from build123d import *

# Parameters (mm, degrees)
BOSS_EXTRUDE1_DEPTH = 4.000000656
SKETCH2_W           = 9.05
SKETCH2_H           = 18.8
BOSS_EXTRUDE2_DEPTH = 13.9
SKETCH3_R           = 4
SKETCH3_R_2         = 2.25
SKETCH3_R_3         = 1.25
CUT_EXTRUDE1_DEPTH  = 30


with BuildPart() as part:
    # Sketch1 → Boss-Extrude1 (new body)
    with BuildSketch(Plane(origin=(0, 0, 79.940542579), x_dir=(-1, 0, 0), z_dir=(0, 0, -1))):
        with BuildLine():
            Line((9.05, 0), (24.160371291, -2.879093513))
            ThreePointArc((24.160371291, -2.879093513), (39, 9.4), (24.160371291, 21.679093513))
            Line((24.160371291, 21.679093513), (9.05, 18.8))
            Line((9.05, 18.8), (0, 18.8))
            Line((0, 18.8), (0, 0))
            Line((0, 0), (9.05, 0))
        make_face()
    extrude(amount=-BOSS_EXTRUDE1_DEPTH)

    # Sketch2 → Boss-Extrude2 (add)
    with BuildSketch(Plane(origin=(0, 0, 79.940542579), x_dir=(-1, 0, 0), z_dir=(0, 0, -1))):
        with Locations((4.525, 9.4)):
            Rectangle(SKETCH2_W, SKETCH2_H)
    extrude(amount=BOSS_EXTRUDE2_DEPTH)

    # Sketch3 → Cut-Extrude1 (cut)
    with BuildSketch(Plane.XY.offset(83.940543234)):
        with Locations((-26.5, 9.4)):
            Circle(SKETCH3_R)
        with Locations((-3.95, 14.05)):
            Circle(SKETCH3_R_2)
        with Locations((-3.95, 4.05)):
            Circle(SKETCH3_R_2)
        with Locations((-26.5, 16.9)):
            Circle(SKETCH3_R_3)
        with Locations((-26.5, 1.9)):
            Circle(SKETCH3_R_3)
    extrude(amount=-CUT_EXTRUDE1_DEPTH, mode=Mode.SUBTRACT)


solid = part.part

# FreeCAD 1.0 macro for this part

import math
import FreeCAD as App
import Part
import Sketcher

doc = App.newDocument("Part")
body = doc.addObject("PartDesign::Body", "Body")

sketch1 = body.newObject("Sketcher::SketchObject", "Sketch")
sketch1.AttachmentSupport = (doc.getObject("XY_Plane"), [""])
sketch1.MapMode = "FlatFace"
sketch1.AttachmentOffset = App.Placement(App.Vector(0, 0, 79.940543), App.Rotation())
sketch1.addGeometry(Part.LineSegment(App.Vector(-9, 0, 0), App.Vector(-24, -3, 0)), False)
sketch1.addGeometry(Part.ArcOfCircle(Part.Circle(App.Vector(-26, 9, 0), App.Vector(0, 0, 1), 12), math.radians(79), math.radians(281)), False)
sketch1.addGeometry(Part.LineSegment(App.Vector(-24, 22, 0), App.Vector(-9, 19, 0)), False)
sketch1.addGeometry(Part.LineSegment(App.Vector(-9, 19, 0), App.Vector(0, 19, 0)), False)
sketch1.addGeometry(Part.LineSegment(App.Vector(0, 19, 0), App.Vector(0, 0, 0)), False)
sketch1.addGeometry(Part.LineSegment(App.Vector(0, 0, 0), App.Vector(-9, 0, 0)), False)
sketch1.addConstraint(Sketcher.Constraint("Tangent", 0, 2, 1, 2))
sketch1.addConstraint(Sketcher.Constraint("Tangent", 1, 1, 2, 1))
sketch1.addConstraint(Sketcher.Constraint("Coincident", 2, 2, 3, 1))
sketch1.addConstraint(Sketcher.Constraint("Coincident", 3, 2, 4, 1))
sketch1.addConstraint(Sketcher.Constraint("Coincident", 4, 2, 5, 1))
sketch1.addConstraint(Sketcher.Constraint("Coincident", 5, 2, 0, 1))
sketch1.addConstraint(Sketcher.Constraint("Horizontal", 3))
sketch1.addConstraint(Sketcher.Constraint("Vertical", 4))
sketch1.addConstraint(Sketcher.Constraint("Horizontal", 5))
sketch1.addConstraint(Sketcher.Constraint("Coincident", 4, 2, -1, 1))
sketch1.addConstraint(Sketcher.Constraint("Vertical", 0, 2, 1, 1))
sketch1.addConstraint(Sketcher.Constraint("Vertical", 2, 2, 5, 2))
sketch1.addConstraint(Sketcher.Constraint("Radius", 1, 12.5))
sketch1.addConstraint(Sketcher.Constraint("DistanceY", 4, 2, 4, 1, 18.8))
sketch1.addConstraint(Sketcher.Constraint("DistanceX", 3, 1, 3, 2, 9.05))
sketch1.addConstraint(Sketcher.Constraint("DistanceX", 1, 3, -1, 1, 26.5))
pad1 = body.newObject("PartDesign::Pad", "Pad")
pad1.Profile = sketch1
pad1.Length = 4.000001

sketch2 = body.newObject("Sketcher::SketchObject", "Sketch001")
sketch2.AttachmentSupport = (doc.getObject("XY_Plane"), [""])
sketch2.MapMode = "FlatFace"
sketch2.AttachmentOffset = App.Placement(App.Vector(0, 0, 79.940543), App.Rotation())
sketch2.addGeometry(Part.LineSegment(App.Vector(0, 19, 0), App.Vector(0, 0, 0)), False)
sketch2.addGeometry(Part.LineSegment(App.Vector(0, 0, 0), App.Vector(-9, 0, 0)), False)
sketch2.addGeometry(Part.LineSegment(App.Vector(-9, 0, 0), App.Vector(-9, 19, 0)), False)
sketch2.addGeometry(Part.LineSegment(App.Vector(-9, 19, 0), App.Vector(0, 19, 0)), False)
sketch2.addConstraint(Sketcher.Constraint("Coincident", 0, 2, 1, 1))
sketch2.addConstraint(Sketcher.Constraint("Coincident", 1, 2, 2, 1))
sketch2.addConstraint(Sketcher.Constraint("Coincident", 2, 2, 3, 1))
sketch2.addConstraint(Sketcher.Constraint("Coincident", 3, 2, 0, 1))
sketch2.addConstraint(Sketcher.Constraint("Vertical", 0))
sketch2.addConstraint(Sketcher.Constraint("Horizontal", 1))
sketch2.addConstraint(Sketcher.Constraint("Vertical", 2))
sketch2.addConstraint(Sketcher.Constraint("Horizontal", 3))
sketch2.addConstraint(Sketcher.Constraint("Coincident", 0, 2, -1, 1))
sketch2.addConstraint(Sketcher.Constraint("DistanceY", 0, 2, 0, 1, 18.8))
sketch2.addConstraint(Sketcher.Constraint("DistanceX", 1, 2, 1, 1, 9.05))
pad2 = body.newObject("PartDesign::Pad", "Pad001")
pad2.Profile = sketch2
pad2.Length = 13.9
pad2.Reversed = True

sketch3 = body.newObject("Sketcher::SketchObject", "Sketch002")
sketch3.AttachmentSupport = (doc.getObject("XY_Plane"), [""])
sketch3.MapMode = "FlatFace"
sketch3.AttachmentOffset = App.Placement(App.Vector(0, 0, 83.940543), App.Rotation())
sketch3.addGeometry(Part.Circle(App.Vector(-26.5, 9.4, 0), App.Vector(0, 0, 1), 4), False)
sketch3.addGeometry(Part.Circle(App.Vector(-4, 14.1, 0), App.Vector(0, 0, 1), 2.2), False)
sketch3.addGeometry(Part.Circle(App.Vector(-4, 4, 0), App.Vector(0, 0, 1), 2.2), False)
sketch3.addGeometry(Part.Circle(App.Vector(-26.5, 16.9, 0), App.Vector(0, 0, 1), 1.2), False)
sketch3.addGeometry(Part.Circle(App.Vector(-26.5, 1.9, 0), App.Vector(0, 0, 1), 1.2), False)
sketch3.addConstraint(Sketcher.Constraint("Equal", 1, 2))
sketch3.addConstraint(Sketcher.Constraint("Equal", 3, 4))
sketch3.addConstraint(Sketcher.Constraint("Vertical", 1, 3, 2, 3))
sketch3.addConstraint(Sketcher.Constraint("Vertical", 0, 3, 3, 3))
sketch3.addConstraint(Sketcher.Constraint("Vertical", 3, 3, 4, 3))
sketch3.addConstraint(Sketcher.Constraint("Diameter", 0, 8.0))
sketch3.addConstraint(Sketcher.Constraint("Diameter", 1, 4.5))
sketch3.addConstraint(Sketcher.Constraint("Diameter", 3, 2.5))
sketch3.addConstraint(Sketcher.Constraint("DistanceY", 2, 3, 1, 3, 10.0))
sketch3.addConstraint(Sketcher.Constraint("DistanceY", 4, 3, 3, 3, 15.0))
sketch3.addConstraint(Sketcher.Constraint("DistanceX", 0, 3, -1, 1, 26.5))
sketch3.addConstraint(Sketcher.Constraint("DistanceY", -1, 1, 0, 3, 9.4))
sketch3.addConstraint(Sketcher.Constraint("DistanceY", -1, 1, 3, 3, 16.9))
sketch3.addConstraint(Sketcher.Constraint("DistanceX", 1, 3, -1, 1, 3.95))
sketch3.addConstraint(Sketcher.Constraint("DistanceY", -1, 1, 1, 3, 14.05))
pocket1 = body.newObject("PartDesign::Pocket", "Pocket")
pocket1.Profile = sketch3
pocket1.Length = 30

doc.recompute()
